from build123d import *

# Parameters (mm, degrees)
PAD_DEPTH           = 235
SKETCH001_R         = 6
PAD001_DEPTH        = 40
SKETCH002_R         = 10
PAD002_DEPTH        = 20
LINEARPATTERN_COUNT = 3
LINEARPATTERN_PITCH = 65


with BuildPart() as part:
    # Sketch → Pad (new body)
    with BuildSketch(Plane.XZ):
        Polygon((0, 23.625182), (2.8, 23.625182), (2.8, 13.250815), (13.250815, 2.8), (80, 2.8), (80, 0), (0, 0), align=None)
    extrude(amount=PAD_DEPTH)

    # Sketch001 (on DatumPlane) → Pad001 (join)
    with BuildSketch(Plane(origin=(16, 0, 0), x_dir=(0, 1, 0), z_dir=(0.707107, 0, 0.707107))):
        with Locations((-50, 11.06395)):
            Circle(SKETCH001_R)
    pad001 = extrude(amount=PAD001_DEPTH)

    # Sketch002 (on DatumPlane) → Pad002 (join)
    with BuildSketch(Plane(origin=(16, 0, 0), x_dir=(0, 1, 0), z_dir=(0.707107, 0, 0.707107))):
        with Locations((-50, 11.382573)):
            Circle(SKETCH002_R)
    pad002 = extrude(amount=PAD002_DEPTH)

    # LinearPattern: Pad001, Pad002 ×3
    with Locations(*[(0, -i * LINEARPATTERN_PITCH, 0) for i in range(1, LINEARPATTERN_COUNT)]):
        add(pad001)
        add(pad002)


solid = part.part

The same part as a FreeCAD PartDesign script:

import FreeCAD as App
import Part
import Sketcher
from FreeCAD import Vector
Q = App.Units.Quantity


def add_polygon(sketch, points):
    """Adds a closed chain of lines whose ends are joined by coincident constraints."""
    first, n = sketch.GeometryCount, len(points)
    for a, b in zip(points, points[1:] + points[:1]):
        sketch.addGeometry(Part.LineSegment(App.Vector(*a, 0), App.Vector(*b, 0)), False)
    for i in range(n):
        sketch.addConstraint(Sketcher.Constraint("Coincident", first + i, 2, first + (i + 1) % n, 1))

doc = App.newDocument("Part")
body = doc.addObject("PartDesign::Body", "Body")

sketch1 = body.newObject("Sketcher::SketchObject", "Sketch")
sketch1.AttachmentSupport = (doc.getObject("XZ_Plane"), [""])
sketch1.MapMode = "FlatFace"
add_polygon(sketch1, [(2.8, 23.625182), (0, 23.625182), (0, 0), (80, 0), (80, 2.8), (13.250815, 2.8), (2.8, 13.250815)])
sketch1.addConstraint(Sketcher.Constraint("Horizontal", 0))
sketch1.addConstraint(Sketcher.Constraint("Vertical", 1))
sketch1.addConstraint(Sketcher.Constraint("Horizontal", 2))
sketch1.addConstraint(Sketcher.Constraint("Vertical", 3))
sketch1.addConstraint(Sketcher.Constraint("Horizontal", 4))
sketch1.addConstraint(Sketcher.Constraint("Vertical", 6))
sketch1.addConstraint(Sketcher.Constraint("Coincident", 1, 2, -1, 1))
sketch1.addConstraint(Sketcher.Constraint("Equal", 0, 3))
sketch1.addConstraint(Sketcher.Constraint("DistanceX", 2, 1, 2, 2, 80.0))
sketch1.addConstraint(Sketcher.Constraint("Angle", 5, Q("135 deg")))
sketch1.addConstraint(Sketcher.Constraint("DistanceX", 0, 2, 0, 1, 2.8))
sketch1.addConstraint(Sketcher.Constraint("DistanceY", 1, 2, 1, 1, 23.625182))
sketch1.addConstraint(Sketcher.Constraint("DistanceX", 4, 2, 4, 1, 66.749185))
pad1 = body.newObject("PartDesign::Pad", "Pad")
pad1.Profile = sketch1
pad1.Length = 235

sketch2 = body.newObject("Sketcher::SketchObject", "Sketch001")
sketch2.Placement = App.Placement(Vector(16, 0, 0), App.Rotation(Vector(0, 1, 0), Vector(-0.707106781, 0, 0.707106781), Vector(0.707106781, 0, 0.707106781), "ZXY"))
sketch2.addGeometry(Part.Circle(Vector(-50, 11.06395, 0), Vector(0, 0, 1), 6), False)
sketch2.addConstraint(Sketcher.Constraint("Diameter", 0, 12.0))
sketch2.addConstraint(Sketcher.Constraint("DistanceX", 0, 3, -1, 1, 50.0))
sketch2.addConstraint(Sketcher.Constraint("DistanceY", -1, 1, 0, 3, 11.06395))
pad2 = body.newObject("PartDesign::Pad", "Pad001")
pad2.Profile = sketch2
pad2.Length = 40

sketch3 = body.newObject("Sketcher::SketchObject", "Sketch002")
sketch3.Placement = App.Placement(Vector(16, 0, 0), App.Rotation(Vector(0, 1, 0), Vector(-0.707106781, 0, 0.707106781), Vector(0.707106781, 0, 0.707106781), "ZXY"))
sketch3.addGeometry(Part.Circle(Vector(-50, 11.382573, 0), Vector(0, 0, 1), 10), False)
sketch3.addConstraint(Sketcher.Constraint("Diameter", 0, 20.0))
sketch3.addConstraint(Sketcher.Constraint("DistanceX", 0, 3, -1, 1, 50.0))
sketch3.addConstraint(Sketcher.Constraint("DistanceY", -1, 1, 0, 3, 11.382573))
pad3 = body.newObject("PartDesign::Pad", "Pad002")
pad3.Profile = sketch3
pad3.Length = 20
doc.recompute()

linearpattern = body.newObject("PartDesign::LinearPattern", "LinearPattern")
linearpattern.Originals = [pad2, pad3]
linearpattern.Direction = (doc.getObject("Y_Axis"), [""])
linearpattern.Mode = "offset"
linearpattern.Offset = 65
linearpattern.Occurrences = 3
linearpattern.Reversed = True
body.Tip = linearpattern

doc.recompute()
